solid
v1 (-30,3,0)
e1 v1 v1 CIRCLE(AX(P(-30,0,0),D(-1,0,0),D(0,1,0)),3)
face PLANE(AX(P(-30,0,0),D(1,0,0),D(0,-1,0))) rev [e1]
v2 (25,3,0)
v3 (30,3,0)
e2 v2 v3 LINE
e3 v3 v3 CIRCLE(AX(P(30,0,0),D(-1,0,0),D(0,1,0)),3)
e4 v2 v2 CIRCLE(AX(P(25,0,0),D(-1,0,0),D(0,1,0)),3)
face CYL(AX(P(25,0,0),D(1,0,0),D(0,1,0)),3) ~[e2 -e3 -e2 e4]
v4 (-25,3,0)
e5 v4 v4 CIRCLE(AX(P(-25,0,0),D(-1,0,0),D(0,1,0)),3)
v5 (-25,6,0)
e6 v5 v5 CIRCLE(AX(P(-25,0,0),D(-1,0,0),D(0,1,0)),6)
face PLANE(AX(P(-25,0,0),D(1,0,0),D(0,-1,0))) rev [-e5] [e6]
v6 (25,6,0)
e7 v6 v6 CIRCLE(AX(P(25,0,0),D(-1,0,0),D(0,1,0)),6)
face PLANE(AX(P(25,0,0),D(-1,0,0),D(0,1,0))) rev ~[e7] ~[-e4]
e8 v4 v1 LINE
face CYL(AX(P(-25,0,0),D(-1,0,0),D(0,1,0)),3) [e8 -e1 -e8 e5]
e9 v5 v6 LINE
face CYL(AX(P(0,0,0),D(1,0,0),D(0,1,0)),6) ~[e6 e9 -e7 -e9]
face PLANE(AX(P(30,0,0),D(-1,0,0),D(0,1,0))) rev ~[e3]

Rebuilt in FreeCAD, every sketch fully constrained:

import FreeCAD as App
import Part
import Sketcher

V = App.Vector
Q = App.Units.Quantity


def add_polygon(sketch, points):
    """Adds a closed chain of lines whose ends are joined by coincident constraints."""
    first, n = sketch.GeometryCount, len(points)
    for a, b in zip(points, points[1:] + points[:1]):
        sketch.addGeometry(Part.LineSegment(App.Vector(*a, 0), App.Vector(*b, 0)), False)
    for i in range(n):
        sketch.addConstraint(Sketcher.Constraint("Coincident", first + i, 2, first + (i + 1) % n, 1))

doc = App.newDocument("Part")
params = doc.addObject("Spreadsheet::Sheet", "Params")
for row, (alias, value) in enumerate([
    ("sketch1_width", "5 mm"),
    ("sketch1_width2", "25 mm"),
    ("sketch1_height", "6 mm"),
    ("revolution_angle", "360 deg"),
], start=1):
    params.set(f"A{row}", alias)
    params.set(f"B{row}", "=" + value)
    params.setAlias(f"B{row}", alias)

body = doc.addObject("PartDesign::Body", "Body")

# Sketch on XY plane
sketch1 = body.newObject("Sketcher::SketchObject", "Sketch")
sketch1.AttachmentSupport = (doc.getObject("XY_Plane"), [""])
sketch1.MapMode = "FlatFace"
add_polygon(sketch1, [(0, 6), (0, 0), (30, 0), (30, 3), (25, 3), (25, 6)])  # lines 0-5
sketch1.addConstraint(Sketcher.Constraint("Vertical", 0))
sketch1.addConstraint(Sketcher.Constraint("Horizontal", 1))
sketch1.addConstraint(Sketcher.Constraint("Vertical", 2))
sketch1.addConstraint(Sketcher.Constraint("Horizontal", 3))
sketch1.addConstraint(Sketcher.Constraint("Vertical", 4))
sketch1.addConstraint(Sketcher.Constraint("Horizontal", 5))
sketch1.addConstraint(Sketcher.Constraint("Coincident", 0, 2, -1, 1))
sketch1.addConstraint(Sketcher.Constraint("Equal", 2, 4))
sketch1.addConstraint(Sketcher.Constraint("DistanceX", 3, 2, 3, 1, Q("5 mm")))
sketch1.addConstraint(Sketcher.Constraint("DistanceX", 5, 2, 5, 1, Q("25 mm")))
sketch1.addConstraint(Sketcher.Constraint("DistanceY", 0, 2, 0, 1, Q("6 mm")))
sketch1.setExpression("Constraints[14]", "Params.sketch1_width")
sketch1.setExpression("Constraints[15]", "Params.sketch1_width2")
sketch1.setExpression("Constraints[16]", "Params.sketch1_height")
revolution = body.newObject("PartDesign::Revolution", "Revolution")
revolution.Profile = sketch1
revolution.ReferenceAxis = (sketch1, ["H_Axis"])
revolution.setExpression("Angle", "Params.revolution_angle")
doc.recompute()

mirrored = body.newObject("PartDesign::Mirrored", "Mirrored")
mirrored.Originals = [revolution]
mirrored.MirrorPlane = (doc.getObject("YZ_Plane"), [""])
body.Tip = mirrored

doc.recompute()
